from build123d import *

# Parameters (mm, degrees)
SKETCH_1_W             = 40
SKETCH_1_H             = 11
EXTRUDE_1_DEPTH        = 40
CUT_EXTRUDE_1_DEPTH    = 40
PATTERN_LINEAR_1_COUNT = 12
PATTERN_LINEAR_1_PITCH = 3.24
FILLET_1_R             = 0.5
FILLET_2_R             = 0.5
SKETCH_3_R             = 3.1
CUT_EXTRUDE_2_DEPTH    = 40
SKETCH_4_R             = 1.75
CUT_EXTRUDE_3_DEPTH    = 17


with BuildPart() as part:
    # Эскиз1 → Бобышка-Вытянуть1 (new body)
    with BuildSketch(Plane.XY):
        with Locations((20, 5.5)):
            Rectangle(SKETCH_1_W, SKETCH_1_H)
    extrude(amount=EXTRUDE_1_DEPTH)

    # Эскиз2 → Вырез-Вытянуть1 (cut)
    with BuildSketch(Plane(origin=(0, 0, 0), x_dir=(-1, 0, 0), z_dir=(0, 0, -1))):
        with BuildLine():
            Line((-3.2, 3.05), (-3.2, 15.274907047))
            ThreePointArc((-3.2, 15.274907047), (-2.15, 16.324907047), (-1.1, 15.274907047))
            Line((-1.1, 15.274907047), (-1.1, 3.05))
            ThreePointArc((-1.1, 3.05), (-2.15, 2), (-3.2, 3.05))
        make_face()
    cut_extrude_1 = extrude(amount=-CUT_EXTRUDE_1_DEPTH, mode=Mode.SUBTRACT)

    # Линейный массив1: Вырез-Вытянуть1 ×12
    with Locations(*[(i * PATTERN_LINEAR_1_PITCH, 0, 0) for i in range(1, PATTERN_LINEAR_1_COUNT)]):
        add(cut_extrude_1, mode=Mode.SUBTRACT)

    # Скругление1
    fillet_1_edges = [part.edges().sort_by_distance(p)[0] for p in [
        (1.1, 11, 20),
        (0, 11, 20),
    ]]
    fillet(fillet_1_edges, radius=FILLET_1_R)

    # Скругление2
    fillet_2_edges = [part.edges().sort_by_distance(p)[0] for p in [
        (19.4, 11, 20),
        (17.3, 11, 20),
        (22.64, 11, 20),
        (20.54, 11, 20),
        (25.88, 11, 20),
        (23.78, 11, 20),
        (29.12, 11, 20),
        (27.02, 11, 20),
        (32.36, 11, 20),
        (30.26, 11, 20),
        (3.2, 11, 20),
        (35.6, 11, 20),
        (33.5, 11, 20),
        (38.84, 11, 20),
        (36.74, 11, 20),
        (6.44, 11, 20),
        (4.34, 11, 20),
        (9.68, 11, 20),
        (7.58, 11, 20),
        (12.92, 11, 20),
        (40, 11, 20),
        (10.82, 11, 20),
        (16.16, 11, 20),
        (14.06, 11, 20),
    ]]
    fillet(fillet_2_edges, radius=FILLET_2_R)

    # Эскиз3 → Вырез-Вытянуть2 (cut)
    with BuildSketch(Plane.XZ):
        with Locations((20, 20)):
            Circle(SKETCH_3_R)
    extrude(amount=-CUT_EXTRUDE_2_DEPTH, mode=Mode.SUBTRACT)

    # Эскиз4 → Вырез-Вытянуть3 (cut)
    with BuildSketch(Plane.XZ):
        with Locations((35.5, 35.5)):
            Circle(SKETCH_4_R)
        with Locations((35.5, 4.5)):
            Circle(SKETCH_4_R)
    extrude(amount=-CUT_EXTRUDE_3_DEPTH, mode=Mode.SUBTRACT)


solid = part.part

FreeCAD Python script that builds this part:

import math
import FreeCAD as App
import Part
import Sketcher
Q = App.Units.Quantity


def edges_at(feature, points):
    """Names of the edges that pass closest to the given points."""
    edges = feature.Shape.Edges
    near = lambda p: min(range(len(edges)), key=lambda i: edges[i].distToShape(Part.Vertex(*p))[0])
    return sorted({f"Edge{near(p) + 1}" for p in points})

doc = App.newDocument("Part")
body = doc.addObject("PartDesign::Body", "Body")

sketch1 = body.newObject("Sketcher::SketchObject", "Sketch")
sketch1.AttachmentSupport = (doc.getObject("XY_Plane"), [""])
sketch1.MapMode = "FlatFace"
sketch1.addGeometry([
    Part.LineSegment(App.Vector(0, 11, 0), App.Vector(0, 0, 0)),
    Part.LineSegment(App.Vector(0, 0, 0), App.Vector(40, 0, 0)),
    Part.LineSegment(App.Vector(40, 0, 0), App.Vector(40, 11, 0)),
    Part.LineSegment(App.Vector(40, 11, 0), App.Vector(0, 11, 0)),
], False)
sketch1.addConstraint([
    Sketcher.Constraint("Coincident", 0, 2, 1, 1),
    Sketcher.Constraint("Coincident", 1, 2, 2, 1),
    Sketcher.Constraint("Coincident", 2, 2, 3, 1),
    Sketcher.Constraint("Coincident", 3, 2, 0, 1),
    Sketcher.Constraint("Vertical", 0),
    Sketcher.Constraint("Horizontal", 1),
    Sketcher.Constraint("Vertical", 2),
    Sketcher.Constraint("Horizontal", 3),
    Sketcher.Constraint("Coincident", 0, 2, -1, 1),
    Sketcher.Constraint("DistanceX", 1, 1, 1, 2, Q("40 mm")),
    Sketcher.Constraint("DistanceY", 0, 2, 0, 1, Q("11 mm")),
])
pad1 = body.newObject("PartDesign::Pad", "Pad")
pad1.Profile = sketch1
pad1.Length = 40

sketch2 = body.newObject("Sketcher::SketchObject", "Sketch001")
sketch2.AttachmentSupport = (doc.getObject("XY_Plane"), [""])
sketch2.MapMode = "FlatFace"
sketch2.addGeometry([
    Part.LineSegment(App.Vector(3.2, 15.3, 0), App.Vector(3.2, 3, 0)),
    Part.ArcOfCircle(Part.Circle(App.Vector(2.1, 3, 0), App.Vector(0, 0, 1), 1.1), math.radians(180), math.radians(360)),
    Part.LineSegment(App.Vector(1.1, 3, 0), App.Vector(1.1, 15.3, 0)),
    Part.ArcOfCircle(Part.Circle(App.Vector(2.1, 15.3, 0), App.Vector(0, 0, 1), 1.1), math.radians(0), math.radians(180)),
], False)
sketch2.addConstraint([
    Sketcher.Constraint("Tangent", 0, 2, 1, 2),
    Sketcher.Constraint("Tangent", 1, 1, 2, 1),
    Sketcher.Constraint("Tangent", 2, 2, 3, 2),
    Sketcher.Constraint("Tangent", 3, 1, 0, 1),
    Sketcher.Constraint("Vertical", 0),
    Sketcher.Constraint("Vertical", 2),
    Sketcher.Constraint("Radius", 1, Q("1.05 mm")),
    Sketcher.Constraint("DistanceX", -1, 1, 0, 2, Q("3.2 mm")),
    Sketcher.Constraint("DistanceY", -1, 1, 1, 3, Q("3.05 mm")),
    Sketcher.Constraint("DistanceY", 0, 2, 0, 1, Q("12.224907 mm")),
])
pocket1 = body.newObject("PartDesign::Pocket", "Pocket")
pocket1.Profile = sketch2
pocket1.Length = 40
pocket1.Reversed = True
doc.recompute()

linearpattern = body.newObject("PartDesign::LinearPattern", "LinearPattern")
linearpattern.Originals = [pocket1]
linearpattern.Direction = (doc.getObject("X_Axis"), [""])
linearpattern.Mode = "offset"
linearpattern.Offset = 3.24
linearpattern.Occurrences = 12
body.Tip = linearpattern
doc.recompute()

fillet = body.newObject("PartDesign::Fillet", "Fillet")
fillet.Base = (linearpattern, edges_at(linearpattern, [(1.1, 11, 20), (0, 11, 20)]))
fillet.Radius = 0.5
doc.recompute()

fillet2 = body.newObject("PartDesign::Fillet", "Fillet001")
fillet2.Base = (fillet, edges_at(fillet, [
    (19.4, 11, 20),
    (17.3, 11, 20),
    (22.64, 11, 20),
    (20.54, 11, 20),
    (25.88, 11, 20),
    (23.78, 11, 20),
    (29.12, 11, 20),
    (27.02, 11, 20),
    (32.36, 11, 20),
    (30.26, 11, 20),
    (3.2, 11, 20),
    (35.6, 11, 20),
    (33.5, 11, 20),
    (38.84, 11, 20),
    (36.74, 11, 20),
    (6.44, 11, 20),
    (4.34, 11, 20),
    (9.68, 11, 20),
    (7.58, 11, 20),
    (12.92, 11, 20),
    (40, 11, 20),
    (10.82, 11, 20),
    (16.16, 11, 20),
    (14.06, 11, 20),
]))
fillet2.Radius = 0.5

sketch3 = body.newObject("Sketcher::SketchObject", "Sketch002")
sketch3.AttachmentSupport = (doc.getObject("XZ_Plane"), [""])
sketch3.MapMode = "FlatFace"
sketch3.addGeometry(Part.Circle(App.Vector(20, 20, 0), App.Vector(0, 0, 1), 3.1), False)
sketch3.addConstraint([
    Sketcher.Constraint("Diameter", 0, Q("6.2 mm")),
    Sketcher.Constraint("DistanceX", -1, 1, 0, 3, Q("20 mm")),
    Sketcher.Constraint("DistanceY", -1, 1, 0, 3, Q("20 mm")),
])
pocket2 = body.newObject("PartDesign::Pocket", "Pocket001")
pocket2.Profile = sketch3
pocket2.Length = 40

sketch4 = body.newObject("Sketcher::SketchObject", "Sketch003")
sketch4.AttachmentSupport = (doc.getObject("XZ_Plane"), [""])
sketch4.MapMode = "FlatFace"
sketch4.addGeometry([
    Part.Circle(App.Vector(35.5, 35.5, 0), App.Vector(0, 0, 1), 1.8),
    Part.Circle(App.Vector(35.5, 4.5, 0), App.Vector(0, 0, 1), 1.8),
], False)
sketch4.addConstraint([
    Sketcher.Constraint("Equal", 0, 1),
    Sketcher.Constraint("Vertical", 0, 3, 1, 3),
    Sketcher.Constraint("Diameter", 0, Q("3.5 mm")),
    Sketcher.Constraint("DistanceY", 1, 3, 0, 3, Q("31 mm")),
    Sketcher.Constraint("DistanceX", -1, 1, 0, 3, Q("35.5 mm")),
    Sketcher.Constraint("DistanceY", -1, 1, 0, 3, Q("35.5 mm")),
])
pocket3 = body.newObject("PartDesign::Pocket", "Pocket002")
pocket3.Profile = sketch4
pocket3.Length = 17

doc.recompute()
